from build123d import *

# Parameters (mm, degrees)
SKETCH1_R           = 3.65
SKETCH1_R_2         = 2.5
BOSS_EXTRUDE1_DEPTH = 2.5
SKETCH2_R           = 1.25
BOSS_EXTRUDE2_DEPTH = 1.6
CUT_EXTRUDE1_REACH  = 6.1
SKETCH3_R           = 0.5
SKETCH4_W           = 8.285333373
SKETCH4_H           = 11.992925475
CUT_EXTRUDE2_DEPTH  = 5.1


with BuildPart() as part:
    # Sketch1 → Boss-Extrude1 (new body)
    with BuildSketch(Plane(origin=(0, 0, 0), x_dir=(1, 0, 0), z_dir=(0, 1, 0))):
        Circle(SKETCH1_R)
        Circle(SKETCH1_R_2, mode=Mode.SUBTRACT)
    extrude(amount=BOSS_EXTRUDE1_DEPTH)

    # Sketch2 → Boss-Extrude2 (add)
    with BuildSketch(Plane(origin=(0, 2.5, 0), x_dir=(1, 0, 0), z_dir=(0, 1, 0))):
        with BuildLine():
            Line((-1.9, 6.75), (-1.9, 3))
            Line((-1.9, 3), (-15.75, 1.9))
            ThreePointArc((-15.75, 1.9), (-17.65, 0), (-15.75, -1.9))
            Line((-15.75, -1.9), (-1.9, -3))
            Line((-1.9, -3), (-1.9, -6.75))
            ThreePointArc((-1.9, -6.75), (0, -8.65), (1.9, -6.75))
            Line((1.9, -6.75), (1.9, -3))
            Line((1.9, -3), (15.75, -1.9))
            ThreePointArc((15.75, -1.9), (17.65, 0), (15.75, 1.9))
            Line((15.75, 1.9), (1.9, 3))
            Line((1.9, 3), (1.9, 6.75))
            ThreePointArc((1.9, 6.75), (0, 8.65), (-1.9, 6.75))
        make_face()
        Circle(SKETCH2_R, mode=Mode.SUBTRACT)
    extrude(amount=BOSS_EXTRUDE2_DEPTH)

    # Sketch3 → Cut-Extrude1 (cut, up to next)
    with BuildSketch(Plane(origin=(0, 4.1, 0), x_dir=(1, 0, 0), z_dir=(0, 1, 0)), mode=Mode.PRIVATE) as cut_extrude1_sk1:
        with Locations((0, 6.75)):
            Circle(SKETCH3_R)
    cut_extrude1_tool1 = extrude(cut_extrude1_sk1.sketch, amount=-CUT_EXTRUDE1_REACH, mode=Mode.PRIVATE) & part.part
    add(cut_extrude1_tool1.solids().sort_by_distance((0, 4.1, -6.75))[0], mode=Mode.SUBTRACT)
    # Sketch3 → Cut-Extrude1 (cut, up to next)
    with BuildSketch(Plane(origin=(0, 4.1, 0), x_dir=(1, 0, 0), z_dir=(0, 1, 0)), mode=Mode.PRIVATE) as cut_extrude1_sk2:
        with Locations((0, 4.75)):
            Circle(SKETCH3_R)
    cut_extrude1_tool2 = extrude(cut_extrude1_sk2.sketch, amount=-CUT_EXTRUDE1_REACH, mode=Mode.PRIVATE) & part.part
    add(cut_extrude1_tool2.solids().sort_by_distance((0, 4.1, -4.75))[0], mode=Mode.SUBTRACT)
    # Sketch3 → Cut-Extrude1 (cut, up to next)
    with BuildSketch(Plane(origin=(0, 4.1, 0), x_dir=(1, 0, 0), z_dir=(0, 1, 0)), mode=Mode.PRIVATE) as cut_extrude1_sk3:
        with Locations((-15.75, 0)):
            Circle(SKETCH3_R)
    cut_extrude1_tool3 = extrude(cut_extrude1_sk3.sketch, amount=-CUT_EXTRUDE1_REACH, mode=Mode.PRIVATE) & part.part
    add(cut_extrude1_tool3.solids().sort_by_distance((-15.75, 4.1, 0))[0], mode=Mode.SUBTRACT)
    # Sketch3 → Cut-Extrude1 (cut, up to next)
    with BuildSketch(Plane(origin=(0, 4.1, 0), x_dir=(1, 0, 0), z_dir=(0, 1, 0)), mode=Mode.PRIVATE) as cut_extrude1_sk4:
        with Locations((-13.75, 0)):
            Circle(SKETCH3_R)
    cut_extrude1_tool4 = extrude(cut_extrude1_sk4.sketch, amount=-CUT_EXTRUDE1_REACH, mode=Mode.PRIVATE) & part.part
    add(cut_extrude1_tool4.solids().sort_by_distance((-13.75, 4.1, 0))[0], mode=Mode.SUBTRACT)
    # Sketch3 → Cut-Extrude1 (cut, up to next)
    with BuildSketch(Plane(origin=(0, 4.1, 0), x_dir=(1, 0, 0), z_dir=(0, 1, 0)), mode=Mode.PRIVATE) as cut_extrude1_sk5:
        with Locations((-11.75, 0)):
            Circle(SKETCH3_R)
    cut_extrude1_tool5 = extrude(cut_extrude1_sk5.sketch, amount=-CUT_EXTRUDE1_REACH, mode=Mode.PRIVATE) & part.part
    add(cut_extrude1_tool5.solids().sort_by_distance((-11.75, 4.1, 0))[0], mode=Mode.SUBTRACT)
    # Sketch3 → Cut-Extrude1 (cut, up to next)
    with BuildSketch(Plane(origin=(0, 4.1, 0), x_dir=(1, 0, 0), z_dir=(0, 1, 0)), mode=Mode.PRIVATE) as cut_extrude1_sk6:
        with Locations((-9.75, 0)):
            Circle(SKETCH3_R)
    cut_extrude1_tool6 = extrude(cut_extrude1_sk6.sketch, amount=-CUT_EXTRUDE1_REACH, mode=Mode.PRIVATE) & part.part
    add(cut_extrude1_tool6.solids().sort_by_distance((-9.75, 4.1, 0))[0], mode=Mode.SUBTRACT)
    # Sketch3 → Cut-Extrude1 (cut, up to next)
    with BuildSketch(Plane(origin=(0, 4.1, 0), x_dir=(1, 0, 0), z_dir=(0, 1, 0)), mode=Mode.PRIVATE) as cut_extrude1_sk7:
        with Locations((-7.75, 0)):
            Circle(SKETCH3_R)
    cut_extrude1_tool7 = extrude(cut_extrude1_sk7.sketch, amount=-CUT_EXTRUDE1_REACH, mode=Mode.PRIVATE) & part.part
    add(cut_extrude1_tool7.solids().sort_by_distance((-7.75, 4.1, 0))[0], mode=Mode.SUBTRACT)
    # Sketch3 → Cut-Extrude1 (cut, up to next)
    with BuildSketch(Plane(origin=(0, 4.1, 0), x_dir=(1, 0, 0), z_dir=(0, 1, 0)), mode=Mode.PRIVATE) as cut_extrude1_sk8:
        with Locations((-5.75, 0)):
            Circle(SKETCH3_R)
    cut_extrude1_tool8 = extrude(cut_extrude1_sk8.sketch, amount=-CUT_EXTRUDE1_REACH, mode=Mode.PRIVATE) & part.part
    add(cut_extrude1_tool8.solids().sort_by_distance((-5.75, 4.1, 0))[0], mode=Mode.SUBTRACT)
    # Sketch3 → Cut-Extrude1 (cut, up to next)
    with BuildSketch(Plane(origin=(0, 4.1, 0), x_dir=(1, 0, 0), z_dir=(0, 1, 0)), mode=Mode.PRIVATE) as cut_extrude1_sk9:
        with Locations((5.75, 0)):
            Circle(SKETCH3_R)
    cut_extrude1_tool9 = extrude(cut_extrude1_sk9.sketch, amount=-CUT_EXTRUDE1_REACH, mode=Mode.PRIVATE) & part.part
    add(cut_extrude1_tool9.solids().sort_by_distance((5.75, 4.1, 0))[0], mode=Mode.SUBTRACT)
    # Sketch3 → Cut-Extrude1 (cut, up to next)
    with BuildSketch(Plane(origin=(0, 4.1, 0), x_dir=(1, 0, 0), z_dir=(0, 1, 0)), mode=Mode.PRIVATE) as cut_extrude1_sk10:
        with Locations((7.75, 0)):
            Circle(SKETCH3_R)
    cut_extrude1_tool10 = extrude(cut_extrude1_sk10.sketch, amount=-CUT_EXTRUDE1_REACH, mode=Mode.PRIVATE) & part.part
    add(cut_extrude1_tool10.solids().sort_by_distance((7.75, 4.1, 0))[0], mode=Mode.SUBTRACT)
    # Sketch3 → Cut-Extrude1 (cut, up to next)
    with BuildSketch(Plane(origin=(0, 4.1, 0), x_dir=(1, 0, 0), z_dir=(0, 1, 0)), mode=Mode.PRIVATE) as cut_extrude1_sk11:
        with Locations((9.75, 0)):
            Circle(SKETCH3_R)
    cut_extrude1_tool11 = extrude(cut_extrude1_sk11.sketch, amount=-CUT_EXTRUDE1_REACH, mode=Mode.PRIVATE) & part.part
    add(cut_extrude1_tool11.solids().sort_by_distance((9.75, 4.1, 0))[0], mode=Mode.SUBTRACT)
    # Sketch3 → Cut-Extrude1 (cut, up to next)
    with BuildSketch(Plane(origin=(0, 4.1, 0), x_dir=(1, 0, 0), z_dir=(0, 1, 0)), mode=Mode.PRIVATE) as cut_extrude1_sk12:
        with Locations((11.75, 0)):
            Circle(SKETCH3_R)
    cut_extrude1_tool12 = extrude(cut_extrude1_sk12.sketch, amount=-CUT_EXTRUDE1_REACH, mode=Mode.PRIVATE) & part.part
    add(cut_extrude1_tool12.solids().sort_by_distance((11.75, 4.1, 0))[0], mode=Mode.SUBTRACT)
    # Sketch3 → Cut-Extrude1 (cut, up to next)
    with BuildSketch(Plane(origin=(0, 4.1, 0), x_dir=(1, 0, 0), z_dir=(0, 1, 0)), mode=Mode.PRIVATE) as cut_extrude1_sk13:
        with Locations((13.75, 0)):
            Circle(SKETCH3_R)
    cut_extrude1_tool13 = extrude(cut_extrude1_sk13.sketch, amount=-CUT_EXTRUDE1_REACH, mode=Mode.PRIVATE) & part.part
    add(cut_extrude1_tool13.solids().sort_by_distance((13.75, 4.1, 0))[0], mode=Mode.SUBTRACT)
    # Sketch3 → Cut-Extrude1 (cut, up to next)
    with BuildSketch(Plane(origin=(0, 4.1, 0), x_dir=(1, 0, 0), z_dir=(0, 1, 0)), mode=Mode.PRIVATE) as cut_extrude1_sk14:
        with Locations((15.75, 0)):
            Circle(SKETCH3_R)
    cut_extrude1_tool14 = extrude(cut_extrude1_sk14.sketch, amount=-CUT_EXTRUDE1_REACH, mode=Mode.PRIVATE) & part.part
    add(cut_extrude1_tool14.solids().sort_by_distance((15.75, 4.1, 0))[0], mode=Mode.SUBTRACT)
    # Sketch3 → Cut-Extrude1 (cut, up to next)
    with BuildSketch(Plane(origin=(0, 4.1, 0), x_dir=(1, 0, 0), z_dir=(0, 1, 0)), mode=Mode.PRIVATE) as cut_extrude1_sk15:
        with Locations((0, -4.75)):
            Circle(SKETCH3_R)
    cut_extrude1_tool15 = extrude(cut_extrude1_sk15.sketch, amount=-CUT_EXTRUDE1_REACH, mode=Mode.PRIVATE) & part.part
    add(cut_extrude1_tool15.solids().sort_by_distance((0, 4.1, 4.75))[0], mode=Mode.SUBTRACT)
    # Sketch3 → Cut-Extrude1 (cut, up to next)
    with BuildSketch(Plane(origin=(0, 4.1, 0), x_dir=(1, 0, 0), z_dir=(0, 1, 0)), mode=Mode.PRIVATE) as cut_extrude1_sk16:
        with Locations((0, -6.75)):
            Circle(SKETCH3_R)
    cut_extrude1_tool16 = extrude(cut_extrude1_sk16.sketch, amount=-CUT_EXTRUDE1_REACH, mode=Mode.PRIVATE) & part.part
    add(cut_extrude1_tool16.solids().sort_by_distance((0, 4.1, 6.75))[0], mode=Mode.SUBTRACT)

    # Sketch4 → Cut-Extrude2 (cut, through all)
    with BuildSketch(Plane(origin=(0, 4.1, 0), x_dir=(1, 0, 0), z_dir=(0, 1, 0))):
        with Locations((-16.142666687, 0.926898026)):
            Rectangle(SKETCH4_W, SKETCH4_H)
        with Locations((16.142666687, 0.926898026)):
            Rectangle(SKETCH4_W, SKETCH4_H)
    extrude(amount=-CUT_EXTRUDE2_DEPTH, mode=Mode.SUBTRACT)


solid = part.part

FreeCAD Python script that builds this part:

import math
import FreeCAD as App
import Part
import Sketcher
from FreeCAD import Vector

doc = App.newDocument("Part")
body = doc.addObject("PartDesign::Body", "Body")

# Sketch on XZ plane
sketch1 = body.newObject("Sketcher::SketchObject", "Sketch")
sketch1.AttachmentSupport = (doc.getObject("XZ_Plane"), [""])
sketch1.MapMode = "FlatFace"
sketch1.addGeometry([
    Part.Circle(Vector(0, 0, 0), Vector(0, 0, 1), 3.65),
    Part.Circle(Vector(0, 0, 0), Vector(0, 0, 1), 2.5),
], False)
sketch1.addConstraint([
    Sketcher.Constraint("Coincident", 0, 3, -1, 1),
    Sketcher.Constraint("Coincident", 1, 3, -1, 1),
    Sketcher.Constraint("Diameter", 1, 5.0),
    Sketcher.Constraint("Diameter", 0, 7.3),
])
pad1 = body.newObject("PartDesign::Pad", "Pad")
pad1.Profile = sketch1
pad1.Length = 2.5
pad1.Reversed = True

# Sketch on XZ plane
sketch2 = body.newObject("Sketcher::SketchObject", "Sketch001")
sketch2.AttachmentSupport = (doc.getObject("XZ_Plane"), [""])
sketch2.MapMode = "FlatFace"
sketch2.AttachmentOffset = App.Placement(Vector(0, 0, -2.5), App.Rotation())
sketch2.addGeometry([
    Part.LineSegment(Vector(-1.9, -6.75, 0), Vector(-1.9, -3, 0)),  # 0
    Part.LineSegment(Vector(-1.9, -3, 0), Vector(-15.75, -1.9, 0)),  # 1
    Part.ArcOfCircle(Part.Circle(Vector(-15.75, 0, 0), Vector(0, 0, 1), 1.9), math.radians(90), math.radians(270)),  # 2
    Part.LineSegment(Vector(-15.75, 1.9, 0), Vector(-1.9, 3, 0)),  # 3
    Part.LineSegment(Vector(-1.9, 3, 0), Vector(-1.9, 6.75, 0)),  # 4
    Part.ArcOfCircle(Part.Circle(Vector(0, 6.75, 0), Vector(0, 0, 1), 1.9), math.radians(0), math.radians(180)),  # 5
    Part.LineSegment(Vector(1.9, 6.75, 0), Vector(1.9, 3, 0)),  # 6
    Part.LineSegment(Vector(1.9, 3, 0), Vector(15.75, 1.9, 0)),  # 7
    Part.ArcOfCircle(Part.Circle(Vector(15.75, 0, 0), Vector(0, 0, 1), 1.9), math.radians(-90), math.radians(90)),  # 8
    Part.LineSegment(Vector(15.75, -1.9, 0), Vector(1.9, -3, 0)),  # 9
    Part.LineSegment(Vector(1.9, -3, 0), Vector(1.9, -6.75, 0)),  # 10
    Part.ArcOfCircle(Part.Circle(Vector(0, -6.75, 0), Vector(0, 0, 1), 1.9), math.radians(180), math.radians(360)),  # 11
    Part.Circle(Vector(0, 0, 0), Vector(0, 0, 1), 1.25),  # 12
], False)
sketch2.addConstraint([
    Sketcher.Constraint("Coincident", 0, 2, 1, 1),
    Sketcher.Constraint("Coincident", 1, 2, 2, 2),
    Sketcher.Constraint("Coincident", 2, 1, 3, 1),
    Sketcher.Constraint("Coincident", 3, 2, 4, 1),
    Sketcher.Constraint("Tangent", 4, 2, 5, 2),
    Sketcher.Constraint("Tangent", 5, 1, 6, 1),
    Sketcher.Constraint("Coincident", 6, 2, 7, 1),
    Sketcher.Constraint("Coincident", 7, 2, 8, 2),
    Sketcher.Constraint("Coincident", 8, 1, 9, 1),
    Sketcher.Constraint("Coincident", 9, 2, 10, 1),
    Sketcher.Constraint("Tangent", 10, 2, 11, 2),
    Sketcher.Constraint("Tangent", 11, 1, 0, 1),
    Sketcher.Constraint("Vertical", 0),
    Sketcher.Constraint("Vertical", 4),
    Sketcher.Constraint("Vertical", 6),
    Sketcher.Constraint("Vertical", 10),
    Sketcher.Constraint("Coincident", 12, 3, -1, 1),
    Sketcher.Constraint("Equal", 2, 5),
    Sketcher.Constraint("Equal", 5, 8),
    Sketcher.Constraint("Equal", 8, 11),
    Sketcher.Constraint("Symmetric", 2, 3, 8, 3, -1, 1),
    Sketcher.Constraint("Symmetric", 5, 3, 11, 3, -1, 1),
    Sketcher.Constraint("Symmetric", 3, 2, 6, 2, -2),
    Sketcher.Constraint("Symmetric", 2, 1, 7, 2, -2),
    Sketcher.Constraint("Parallel", 1, 7),
    Sketcher.Constraint("Parallel", 3, 9),
    Sketcher.Constraint("Horizontal", 0, 2, 9, 2),
    Sketcher.Constraint("Vertical", 2, 3, 1, 2),
    Sketcher.Constraint("Vertical", 1, 2, 2, 1),
    Sketcher.Constraint("Diameter", 12, 2.5),
    Sketcher.Constraint("Radius", 2, 1.9),
    Sketcher.Constraint("DistanceY", 0, 2, -1, 1, 3.0),
    Sketcher.Constraint("DistanceY", 0, 1, 0, 2, 3.75),
    Sketcher.Constraint("DistanceX", 2, 3, 8, 3, 31.5),
])
pad2 = body.newObject("PartDesign::Pad", "Pad001")
pad2.Profile = sketch2
pad2.Length = 1.6
pad2.Reversed = True

# Sketch on XZ plane
sketch3 = body.newObject("Sketcher::SketchObject", "Sketch002")
sketch3.AttachmentSupport = (doc.getObject("XZ_Plane"), [""])
sketch3.MapMode = "FlatFace"
sketch3.AttachmentOffset = App.Placement(Vector(0, 0, -4.1), App.Rotation())
sketch3.addGeometry(Part.Circle(Vector(0, -6.75, 0), Vector(0, 0, 1), 0.5), False)
sketch3.addConstraint([
    Sketcher.Constraint("PointOnObject", 0, 3, -2),
    Sketcher.Constraint("Diameter", 0, 1.0),
    Sketcher.Constraint("DistanceY", 0, 3, -1, 1, 6.75),
])
pocket1 = body.newObject("PartDesign::Pocket", "Pocket")
pocket1.Profile = sketch3
pocket1.Type = "UpToFirst"
pocket1.Reversed = True

# Sketch on XZ plane
sketch4 = body.newObject("Sketcher::SketchObject", "Sketch003")
sketch4.AttachmentSupport = (doc.getObject("XZ_Plane"), [""])
sketch4.MapMode = "FlatFace"
sketch4.AttachmentOffset = App.Placement(Vector(0, 0, -4.1), App.Rotation())
sketch4.addGeometry(Part.Circle(Vector(0, -4.75, 0), Vector(0, 0, 1), 0.5), False)
sketch4.addConstraint([
    Sketcher.Constraint("PointOnObject", 0, 3, -2),
    Sketcher.Constraint("Diameter", 0, 1.0),
    Sketcher.Constraint("DistanceY", 0, 3, -1, 1, 4.75),
])
pocket2 = body.newObject("PartDesign::Pocket", "Pocket001")
pocket2.Profile = sketch4
pocket2.Type = "UpToFirst"
pocket2.Reversed = True

# Sketch on XZ plane
sketch5 = body.newObject("Sketcher::SketchObject", "Sketch004")
sketch5.AttachmentSupport = (doc.getObject("XZ_Plane"), [""])
sketch5.MapMode = "FlatFace"
sketch5.AttachmentOffset = App.Placement(Vector(0, 0, -4.1), App.Rotation())
sketch5.addGeometry(Part.Circle(Vector(-15.75, 0, 0), Vector(0, 0, 1), 0.5), False)
sketch5.addConstraint([
    Sketcher.Constraint("PointOnObject", 0, 3, -1),
    Sketcher.Constraint("Diameter", 0, 1.0),
    Sketcher.Constraint("DistanceX", 0, 3, -1, 1, 15.75),
])
pocket3 = body.newObject("PartDesign::Pocket", "Pocket002")
pocket3.Profile = sketch5
pocket3.Type = "UpToFirst"
pocket3.Reversed = True

# Sketch on XZ plane
sketch6 = body.newObject("Sketcher::SketchObject", "Sketch005")
sketch6.AttachmentSupport = (doc.getObject("XZ_Plane"), [""])
sketch6.MapMode = "FlatFace"
sketch6.AttachmentOffset = App.Placement(Vector(0, 0, -4.1), App.Rotation())
sketch6.addGeometry(Part.Circle(Vector(-13.75, 0, 0), Vector(0, 0, 1), 0.5), False)
sketch6.addConstraint([
    Sketcher.Constraint("PointOnObject", 0, 3, -1),
    Sketcher.Constraint("Diameter", 0, 1.0),
    Sketcher.Constraint("DistanceX", 0, 3, -1, 1, 13.75),
])
pocket4 = body.newObject("PartDesign::Pocket", "Pocket003")
pocket4.Profile = sketch6
pocket4.Type = "UpToFirst"
pocket4.Reversed = True

# Sketch on XZ plane
sketch7 = body.newObject("Sketcher::SketchObject", "Sketch006")
sketch7.AttachmentSupport = (doc.getObject("XZ_Plane"), [""])
sketch7.MapMode = "FlatFace"
sketch7.AttachmentOffset = App.Placement(Vector(0, 0, -4.1), App.Rotation())
sketch7.addGeometry(Part.Circle(Vector(-11.75, 0, 0), Vector(0, 0, 1), 0.5), False)
sketch7.addConstraint([
    Sketcher.Constraint("PointOnObject", 0, 3, -1),
    Sketcher.Constraint("Diameter", 0, 1.0),
    Sketcher.Constraint("DistanceX", 0, 3, -1, 1, 11.75),
])
pocket5 = body.newObject("PartDesign::Pocket", "Pocket004")
pocket5.Profile = sketch7
pocket5.Type = "UpToFirst"
pocket5.Reversed = True

# Sketch on XZ plane
sketch8 = body.newObject("Sketcher::SketchObject", "Sketch007")
sketch8.AttachmentSupport = (doc.getObject("XZ_Plane"), [""])
sketch8.MapMode = "FlatFace"
sketch8.AttachmentOffset = App.Placement(Vector(0, 0, -4.1), App.Rotation())
sketch8.addGeometry(Part.Circle(Vector(-9.75, 0, 0), Vector(0, 0, 1), 0.5), False)
sketch8.addConstraint([
    Sketcher.Constraint("PointOnObject", 0, 3, -1),
    Sketcher.Constraint("Diameter", 0, 1.0),
    Sketcher.Constraint("DistanceX", 0, 3, -1, 1, 9.75),
])
pocket6 = body.newObject("PartDesign::Pocket", "Pocket005")
pocket6.Profile = sketch8
pocket6.Type = "UpToFirst"
pocket6.Reversed = True

# Sketch on XZ plane
sketch9 = body.newObject("Sketcher::SketchObject", "Sketch008")
sketch9.AttachmentSupport = (doc.getObject("XZ_Plane"), [""])
sketch9.MapMode = "FlatFace"
sketch9.AttachmentOffset = App.Placement(Vector(0, 0, -4.1), App.Rotation())
sketch9.addGeometry(Part.Circle(Vector(-7.75, 0, 0), Vector(0, 0, 1), 0.5), False)
sketch9.addConstraint([
    Sketcher.Constraint("PointOnObject", 0, 3, -1),
    Sketcher.Constraint("Diameter", 0, 1.0),
    Sketcher.Constraint("DistanceX", 0, 3, -1, 1, 7.75),
])
pocket7 = body.newObject("PartDesign::Pocket", "Pocket006")
pocket7.Profile = sketch9
pocket7.Type = "UpToFirst"
pocket7.Reversed = True

# Sketch on XZ plane
sketch10 = body.newObject("Sketcher::SketchObject", "Sketch009")
sketch10.AttachmentSupport = (doc.getObject("XZ_Plane"), [""])
sketch10.MapMode = "FlatFace"
sketch10.AttachmentOffset = App.Placement(Vector(0, 0, -4.1), App.Rotation())
sketch10.addGeometry(Part.Circle(Vector(-5.75, 0, 0), Vector(0, 0, 1), 0.5), False)
sketch10.addConstraint([
    Sketcher.Constraint("PointOnObject", 0, 3, -1),
    Sketcher.Constraint("Diameter", 0, 1.0),
    Sketcher.Constraint("DistanceX", 0, 3, -1, 1, 5.75),
])
pocket8 = body.newObject("PartDesign::Pocket", "Pocket007")
pocket8.Profile = sketch10
pocket8.Type = "UpToFirst"
pocket8.Reversed = True

# Sketch on XZ plane
sketch11 = body.newObject("Sketcher::SketchObject", "Sketch010")
sketch11.AttachmentSupport = (doc.getObject("XZ_Plane"), [""])
sketch11.MapMode = "FlatFace"
sketch11.AttachmentOffset = App.Placement(Vector(0, 0, -4.1), App.Rotation())
sketch11.addGeometry(Part.Circle(Vector(5.75, 0, 0), Vector(0, 0, 1), 0.5), False)
sketch11.addConstraint([
    Sketcher.Constraint("PointOnObject", 0, 3, -1),
    Sketcher.Constraint("Diameter", 0, 1.0),
    Sketcher.Constraint("DistanceX", -1, 1, 0, 3, 5.75),
])
pocket9 = body.newObject("PartDesign::Pocket", "Pocket008")
pocket9.Profile = sketch11
pocket9.Type = "UpToFirst"
pocket9.Reversed = True

# Sketch on XZ plane
sketch12 = body.newObject("Sketcher::SketchObject", "Sketch011")
sketch12.AttachmentSupport = (doc.getObject("XZ_Plane"), [""])
sketch12.MapMode = "FlatFace"
sketch12.AttachmentOffset = App.Placement(Vector(0, 0, -4.1), App.Rotation())
sketch12.addGeometry(Part.Circle(Vector(7.75, 0, 0), Vector(0, 0, 1), 0.5), False)
sketch12.addConstraint([
    Sketcher.Constraint("PointOnObject", 0, 3, -1),
    Sketcher.Constraint("Diameter", 0, 1.0),
    Sketcher.Constraint("DistanceX", -1, 1, 0, 3, 7.75),
])
pocket10 = body.newObject("PartDesign::Pocket", "Pocket009")
pocket10.Profile = sketch12
pocket10.Type = "UpToFirst"
pocket10.Reversed = True

# Sketch on XZ plane
sketch13 = body.newObject("Sketcher::SketchObject", "Sketch012")
sketch13.AttachmentSupport = (doc.getObject("XZ_Plane"), [""])
sketch13.MapMode = "FlatFace"
sketch13.AttachmentOffset = App.Placement(Vector(0, 0, -4.1), App.Rotation())
sketch13.addGeometry(Part.Circle(Vector(9.75, 0, 0), Vector(0, 0, 1), 0.5), False)
sketch13.addConstraint([
    Sketcher.Constraint("PointOnObject", 0, 3, -1),
    Sketcher.Constraint("Diameter", 0, 1.0),
    Sketcher.Constraint("DistanceX", -1, 1, 0, 3, 9.75),
])
pocket11 = body.newObject("PartDesign::Pocket", "Pocket010")
pocket11.Profile = sketch13
pocket11.Type = "UpToFirst"
pocket11.Reversed = True

# Sketch on XZ plane
sketch14 = body.newObject("Sketcher::SketchObject", "Sketch013")
sketch14.AttachmentSupport = (doc.getObject("XZ_Plane"), [""])
sketch14.MapMode = "FlatFace"
sketch14.AttachmentOffset = App.Placement(Vector(0, 0, -4.1), App.Rotation())
sketch14.addGeometry(Part.Circle(Vector(11.75, 0, 0), Vector(0, 0, 1), 0.5), False)
sketch14.addConstraint([
    Sketcher.Constraint("PointOnObject", 0, 3, -1),
    Sketcher.Constraint("Diameter", 0, 1.0),
    Sketcher.Constraint("DistanceX", -1, 1, 0, 3, 11.75),
])
pocket12 = body.newObject("PartDesign::Pocket", "Pocket011")
pocket12.Profile = sketch14
pocket12.Type = "UpToFirst"
pocket12.Reversed = True

# Sketch on XZ plane
sketch15 = body.newObject("Sketcher::SketchObject", "Sketch014")
sketch15.AttachmentSupport = (doc.getObject("XZ_Plane"), [""])
sketch15.MapMode = "FlatFace"
sketch15.AttachmentOffset = App.Placement(Vector(0, 0, -4.1), App.Rotation())
sketch15.addGeometry(Part.Circle(Vector(13.75, 0, 0), Vector(0, 0, 1), 0.5), False)
sketch15.addConstraint([
    Sketcher.Constraint("PointOnObject", 0, 3, -1),
    Sketcher.Constraint("Diameter", 0, 1.0),
    Sketcher.Constraint("DistanceX", -1, 1, 0, 3, 13.75),
])
pocket13 = body.newObject("PartDesign::Pocket", "Pocket012")
pocket13.Profile = sketch15
pocket13.Type = "UpToFirst"
pocket13.Reversed = True

# Sketch on XZ plane
sketch16 = body.newObject("Sketcher::SketchObject", "Sketch015")
sketch16.AttachmentSupport = (doc.getObject("XZ_Plane"), [""])
sketch16.MapMode = "FlatFace"
sketch16.AttachmentOffset = App.Placement(Vector(0, 0, -4.1), App.Rotation())
sketch16.addGeometry(Part.Circle(Vector(15.75, 0, 0), Vector(0, 0, 1), 0.5), False)
sketch16.addConstraint([
    Sketcher.Constraint("PointOnObject", 0, 3, -1),
    Sketcher.Constraint("Diameter", 0, 1.0),
    Sketcher.Constraint("DistanceX", -1, 1, 0, 3, 15.75),
])
pocket14 = body.newObject("PartDesign::Pocket", "Pocket013")
pocket14.Profile = sketch16
pocket14.Type = "UpToFirst"
pocket14.Reversed = True

# Sketch on XZ plane
sketch17 = body.newObject("Sketcher::SketchObject", "Sketch016")
sketch17.AttachmentSupport = (doc.getObject("XZ_Plane"), [""])
sketch17.MapMode = "FlatFace"
sketch17.AttachmentOffset = App.Placement(Vector(0, 0, -4.1), App.Rotation())
sketch17.addGeometry(Part.Circle(Vector(0, 4.75, 0), Vector(0, 0, 1), 0.5), False)
sketch17.addConstraint([
    Sketcher.Constraint("PointOnObject", 0, 3, -2),
    Sketcher.Constraint("Diameter", 0, 1.0),
    Sketcher.Constraint("DistanceY", -1, 1, 0, 3, 4.75),
])
pocket15 = body.newObject("PartDesign::Pocket", "Pocket014")
pocket15.Profile = sketch17
pocket15.Type = "UpToFirst"
pocket15.Reversed = True

# Sketch on XZ plane
sketch18 = body.newObject("Sketcher::SketchObject", "Sketch017")
sketch18.AttachmentSupport = (doc.getObject("XZ_Plane"), [""])
sketch18.MapMode = "FlatFace"
sketch18.AttachmentOffset = App.Placement(Vector(0, 0, -4.1), App.Rotation())
sketch18.addGeometry(Part.Circle(Vector(0, 6.75, 0), Vector(0, 0, 1), 0.5), False)
sketch18.addConstraint([
    Sketcher.Constraint("PointOnObject", 0, 3, -2),
    Sketcher.Constraint("Diameter", 0, 1.0),
    Sketcher.Constraint("DistanceY", -1, 1, 0, 3, 6.75),
])
pocket16 = body.newObject("PartDesign::Pocket", "Pocket015")
pocket16.Profile = sketch18
pocket16.Type = "UpToFirst"
pocket16.Reversed = True

# Sketch on XZ plane
sketch19 = body.newObject("Sketcher::SketchObject", "Sketch018")
sketch19.AttachmentSupport = (doc.getObject("XZ_Plane"), [""])
sketch19.MapMode = "FlatFace"
sketch19.AttachmentOffset = App.Placement(Vector(0, 0, -4.1), App.Rotation())
sketch19.addGeometry([
    Part.LineSegment(Vector(-20.285333, -6.923361, 0), Vector(-20.285333, 5.069565, 0)),  # 0
    Part.LineSegment(Vector(-20.285333, 5.069565, 0), Vector(-12, 5.069565, 0)),  # 1
    Part.LineSegment(Vector(-12, 5.069565, 0), Vector(-12, -6.923361, 0)),  # 2
    Part.LineSegment(Vector(-12, -6.923361, 0), Vector(-20.285333, -6.923361, 0)),  # 3
    Part.LineSegment(Vector(12, -6.923361, 0), Vector(12, 5.069565, 0)),  # 4
    Part.LineSegment(Vector(12, 5.069565, 0), Vector(20.285333, 5.069565, 0)),  # 5
    Part.LineSegment(Vector(20.285333, 5.069565, 0), Vector(20.285333, -6.923361, 0)),  # 6
    Part.LineSegment(Vector(20.285333, -6.923361, 0), Vector(12, -6.923361, 0)),  # 7
], False)
sketch19.addConstraint([
    Sketcher.Constraint("Coincident", 0, 2, 1, 1),
    Sketcher.Constraint("Coincident", 1, 2, 2, 1),
    Sketcher.Constraint("Coincident", 2, 2, 3, 1),
    Sketcher.Constraint("Coincident", 3, 2, 0, 1),
    Sketcher.Constraint("Coincident", 4, 2, 5, 1),
    Sketcher.Constraint("Coincident", 5, 2, 6, 1),
    Sketcher.Constraint("Coincident", 6, 2, 7, 1),
    Sketcher.Constraint("Coincident", 7, 2, 4, 1),
    Sketcher.Constraint("Vertical", 0),
    Sketcher.Constraint("Horizontal", 1),
    Sketcher.Constraint("Vertical", 2),
    Sketcher.Constraint("Horizontal", 3),
    Sketcher.Constraint("Vertical", 4),
    Sketcher.Constraint("Horizontal", 5),
    Sketcher.Constraint("Vertical", 6),
    Sketcher.Constraint("Horizontal", 7),
    Sketcher.Constraint("Symmetric", 1, 2, 4, 2, -2),
    Sketcher.Constraint("Symmetric", 3, 2, 6, 2, -2),
    Sketcher.Constraint("DistanceX", 1, 2, -1, 1, 12.0),
    Sketcher.Constraint("DistanceX", 1, 1, 1, 2, 8.285333),
    Sketcher.Constraint("DistanceY", 0, 1, 0, 2, 11.992925),
    Sketcher.Constraint("DistanceY", 2, 2, -1, 1, 6.923361),
])
pocket17 = body.newObject("PartDesign::Pocket", "Pocket016")
pocket17.Profile = sketch19
pocket17.Type = "ThroughAll"
pocket17.Reversed = True

doc.recompute()
